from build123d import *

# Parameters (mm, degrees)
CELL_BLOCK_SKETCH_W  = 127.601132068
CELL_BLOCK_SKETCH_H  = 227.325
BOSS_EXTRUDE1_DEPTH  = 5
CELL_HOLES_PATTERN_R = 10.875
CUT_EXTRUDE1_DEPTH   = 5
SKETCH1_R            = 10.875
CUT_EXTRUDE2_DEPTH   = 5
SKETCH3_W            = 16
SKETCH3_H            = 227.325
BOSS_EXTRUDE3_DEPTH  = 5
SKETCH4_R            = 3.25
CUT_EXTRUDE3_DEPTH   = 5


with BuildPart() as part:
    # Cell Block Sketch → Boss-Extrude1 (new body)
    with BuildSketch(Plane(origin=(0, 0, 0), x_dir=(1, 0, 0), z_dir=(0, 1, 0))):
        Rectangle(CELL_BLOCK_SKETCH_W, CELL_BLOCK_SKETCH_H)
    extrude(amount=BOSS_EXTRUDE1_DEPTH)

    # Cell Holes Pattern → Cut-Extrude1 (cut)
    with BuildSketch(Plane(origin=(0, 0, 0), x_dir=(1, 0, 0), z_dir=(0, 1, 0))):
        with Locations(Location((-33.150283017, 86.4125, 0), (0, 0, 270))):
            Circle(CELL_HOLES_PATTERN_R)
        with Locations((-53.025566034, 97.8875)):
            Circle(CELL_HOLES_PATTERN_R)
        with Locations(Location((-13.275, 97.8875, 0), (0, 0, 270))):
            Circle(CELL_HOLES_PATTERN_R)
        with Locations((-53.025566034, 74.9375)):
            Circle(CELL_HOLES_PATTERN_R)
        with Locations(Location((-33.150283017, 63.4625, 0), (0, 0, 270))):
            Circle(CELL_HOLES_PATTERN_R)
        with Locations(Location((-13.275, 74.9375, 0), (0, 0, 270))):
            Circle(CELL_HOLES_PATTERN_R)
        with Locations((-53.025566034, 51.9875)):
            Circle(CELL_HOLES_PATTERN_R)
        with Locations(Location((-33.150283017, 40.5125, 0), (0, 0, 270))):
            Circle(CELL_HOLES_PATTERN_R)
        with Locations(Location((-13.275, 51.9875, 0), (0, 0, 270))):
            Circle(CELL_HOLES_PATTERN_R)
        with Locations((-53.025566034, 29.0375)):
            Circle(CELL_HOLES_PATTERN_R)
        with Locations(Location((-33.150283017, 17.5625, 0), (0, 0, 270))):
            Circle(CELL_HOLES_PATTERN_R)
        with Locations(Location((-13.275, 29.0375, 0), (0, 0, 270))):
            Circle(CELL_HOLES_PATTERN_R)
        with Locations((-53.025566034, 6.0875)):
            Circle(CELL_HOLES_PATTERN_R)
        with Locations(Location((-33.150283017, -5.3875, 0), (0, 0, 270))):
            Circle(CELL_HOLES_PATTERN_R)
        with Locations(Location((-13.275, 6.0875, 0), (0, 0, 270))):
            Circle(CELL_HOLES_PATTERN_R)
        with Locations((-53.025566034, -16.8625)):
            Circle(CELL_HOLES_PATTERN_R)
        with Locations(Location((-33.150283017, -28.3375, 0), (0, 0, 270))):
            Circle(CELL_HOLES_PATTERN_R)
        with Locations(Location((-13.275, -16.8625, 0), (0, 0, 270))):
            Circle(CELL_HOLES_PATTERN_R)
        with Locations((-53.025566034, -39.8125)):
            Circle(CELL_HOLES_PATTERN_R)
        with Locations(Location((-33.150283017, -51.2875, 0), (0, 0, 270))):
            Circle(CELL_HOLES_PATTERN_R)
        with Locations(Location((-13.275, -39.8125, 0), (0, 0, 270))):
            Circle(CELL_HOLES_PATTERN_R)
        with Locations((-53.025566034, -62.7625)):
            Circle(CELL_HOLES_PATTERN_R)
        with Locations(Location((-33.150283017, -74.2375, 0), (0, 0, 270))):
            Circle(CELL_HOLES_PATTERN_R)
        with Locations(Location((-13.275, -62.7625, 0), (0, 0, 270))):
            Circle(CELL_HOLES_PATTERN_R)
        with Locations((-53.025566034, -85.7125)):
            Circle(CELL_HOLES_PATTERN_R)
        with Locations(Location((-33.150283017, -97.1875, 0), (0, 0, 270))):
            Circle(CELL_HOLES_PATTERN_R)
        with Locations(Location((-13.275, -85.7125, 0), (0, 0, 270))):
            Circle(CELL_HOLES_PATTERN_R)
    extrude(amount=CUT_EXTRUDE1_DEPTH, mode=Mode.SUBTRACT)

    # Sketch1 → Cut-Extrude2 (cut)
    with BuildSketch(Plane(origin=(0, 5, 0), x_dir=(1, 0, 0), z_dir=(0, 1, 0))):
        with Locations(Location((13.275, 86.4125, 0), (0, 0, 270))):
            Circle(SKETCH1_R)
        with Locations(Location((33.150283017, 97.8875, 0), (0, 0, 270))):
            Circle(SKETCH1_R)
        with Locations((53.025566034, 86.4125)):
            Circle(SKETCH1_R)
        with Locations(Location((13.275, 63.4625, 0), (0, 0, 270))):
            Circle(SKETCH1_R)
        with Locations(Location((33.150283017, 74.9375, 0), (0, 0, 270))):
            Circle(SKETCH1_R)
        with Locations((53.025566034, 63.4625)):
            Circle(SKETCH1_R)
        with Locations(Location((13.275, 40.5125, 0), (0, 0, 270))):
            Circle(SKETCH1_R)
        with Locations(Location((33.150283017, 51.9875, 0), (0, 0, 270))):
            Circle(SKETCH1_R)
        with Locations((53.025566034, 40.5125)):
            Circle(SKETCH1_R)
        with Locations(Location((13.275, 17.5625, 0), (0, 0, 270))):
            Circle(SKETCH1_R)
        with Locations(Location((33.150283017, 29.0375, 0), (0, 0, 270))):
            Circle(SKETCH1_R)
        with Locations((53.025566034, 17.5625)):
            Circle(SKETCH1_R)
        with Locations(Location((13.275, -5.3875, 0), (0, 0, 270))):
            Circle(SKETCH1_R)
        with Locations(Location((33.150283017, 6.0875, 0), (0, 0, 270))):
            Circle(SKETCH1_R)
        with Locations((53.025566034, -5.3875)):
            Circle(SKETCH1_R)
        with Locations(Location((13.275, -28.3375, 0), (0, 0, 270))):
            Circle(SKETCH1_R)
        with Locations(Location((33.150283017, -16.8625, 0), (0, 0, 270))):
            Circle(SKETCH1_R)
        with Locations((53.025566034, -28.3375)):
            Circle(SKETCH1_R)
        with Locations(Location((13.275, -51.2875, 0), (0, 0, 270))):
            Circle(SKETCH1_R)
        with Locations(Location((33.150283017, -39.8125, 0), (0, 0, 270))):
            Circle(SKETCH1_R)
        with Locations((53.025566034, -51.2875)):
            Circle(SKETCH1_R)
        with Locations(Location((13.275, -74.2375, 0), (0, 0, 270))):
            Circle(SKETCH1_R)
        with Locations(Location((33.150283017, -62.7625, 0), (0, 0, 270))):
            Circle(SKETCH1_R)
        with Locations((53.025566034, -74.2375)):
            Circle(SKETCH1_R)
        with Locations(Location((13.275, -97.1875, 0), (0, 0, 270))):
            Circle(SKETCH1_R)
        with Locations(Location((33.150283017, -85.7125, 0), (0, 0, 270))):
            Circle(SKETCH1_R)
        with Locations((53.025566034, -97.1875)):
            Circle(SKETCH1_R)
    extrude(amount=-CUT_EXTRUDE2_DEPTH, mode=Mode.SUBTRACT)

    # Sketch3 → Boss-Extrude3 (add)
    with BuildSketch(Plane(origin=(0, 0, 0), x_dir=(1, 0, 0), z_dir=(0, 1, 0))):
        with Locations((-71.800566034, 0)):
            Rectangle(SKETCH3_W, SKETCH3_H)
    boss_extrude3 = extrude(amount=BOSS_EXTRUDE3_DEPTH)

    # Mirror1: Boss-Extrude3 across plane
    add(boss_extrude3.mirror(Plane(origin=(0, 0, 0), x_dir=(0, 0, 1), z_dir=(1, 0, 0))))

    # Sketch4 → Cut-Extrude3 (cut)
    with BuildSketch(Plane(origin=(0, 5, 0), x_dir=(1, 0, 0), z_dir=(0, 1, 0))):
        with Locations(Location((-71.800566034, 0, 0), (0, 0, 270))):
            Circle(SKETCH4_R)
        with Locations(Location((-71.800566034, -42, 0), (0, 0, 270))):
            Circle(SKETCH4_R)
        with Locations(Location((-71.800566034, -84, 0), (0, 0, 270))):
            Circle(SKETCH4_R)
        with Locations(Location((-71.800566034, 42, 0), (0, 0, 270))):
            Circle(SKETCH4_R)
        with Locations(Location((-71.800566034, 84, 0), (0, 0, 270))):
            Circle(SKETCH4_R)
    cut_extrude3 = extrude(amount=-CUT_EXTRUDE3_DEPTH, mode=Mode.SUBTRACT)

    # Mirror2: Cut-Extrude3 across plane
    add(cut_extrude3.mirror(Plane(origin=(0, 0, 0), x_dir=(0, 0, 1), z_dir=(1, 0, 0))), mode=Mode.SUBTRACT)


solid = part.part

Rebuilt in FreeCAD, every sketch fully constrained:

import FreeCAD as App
import Part
import Sketcher
Q = App.Units.Quantity


def add_polygon(sketch, points):
    """Adds a closed chain of lines whose ends are joined by coincident constraints."""
    first, n = sketch.GeometryCount, len(points)
    for a, b in zip(points, points[1:] + points[:1]):
        sketch.addGeometry(Part.LineSegment(App.Vector(*a, 0), App.Vector(*b, 0)), False)
    for i in range(n):
        sketch.addConstraint(Sketcher.Constraint("Coincident", first + i, 2, first + (i + 1) % n, 1))

doc = App.newDocument("Part")
body = doc.addObject("PartDesign::Body", "Body")

# Sketch on XZ plane
sketch1 = body.newObject("Sketcher::SketchObject", "Sketch")
sketch1.AttachmentSupport = (doc.getObject("XZ_Plane"), [""])
sketch1.MapMode = "FlatFace"
add_polygon(sketch1, [(-64, -114), (-64, 114), (64, 114), (64, -114)])  # lines 0-3
sketch1.addConstraint(Sketcher.Constraint("Vertical", 0))
sketch1.addConstraint(Sketcher.Constraint("Horizontal", 1))
sketch1.addConstraint(Sketcher.Constraint("Vertical", 2))
sketch1.addConstraint(Sketcher.Constraint("Horizontal", 3))
sketch1.addConstraint(Sketcher.Constraint("Symmetric", 0, 2, 2, 2, -1, 1))
sketch1.addConstraint(Sketcher.Constraint("DistanceY", 0, 1, 0, 2, Q("227.325 mm")))
sketch1.addConstraint(Sketcher.Constraint("DistanceX", 1, 1, 1, 2, Q("127.601132 mm")))
pad1 = body.newObject("PartDesign::Pad", "Pad")
pad1.Profile = sketch1
pad1.Length = 5
pad1.Reversed = True

# Sketch on XZ plane
sketch2 = body.newObject("Sketcher::SketchObject", "Sketch001")
sketch2.AttachmentSupport = (doc.getObject("XZ_Plane"), [""])
sketch2.MapMode = "FlatFace"
sketch2.addGeometry(Part.Circle(App.Vector(-33, -86, 0), App.Vector(0, 0, 1), 11), False)
sketch2.addGeometry(Part.Circle(App.Vector(-53, -98, 0), App.Vector(0, 0, 1), 11), False)
sketch2.addGeometry(Part.Circle(App.Vector(-13, -98, 0), App.Vector(0, 0, 1), 11), False)
sketch2.addGeometry(Part.Circle(App.Vector(-53, -75, 0), App.Vector(0, 0, 1), 11), False)
sketch2.addGeometry(Part.Circle(App.Vector(-33, -63, 0), App.Vector(0, 0, 1), 11), False)
sketch2.addGeometry(Part.Circle(App.Vector(-13, -75, 0), App.Vector(0, 0, 1), 11), False)
sketch2.addGeometry(Part.Circle(App.Vector(-53, -52, 0), App.Vector(0, 0, 1), 11), False)
sketch2.addGeometry(Part.Circle(App.Vector(-33, -41, 0), App.Vector(0, 0, 1), 11), False)
sketch2.addGeometry(Part.Circle(App.Vector(-13, -52, 0), App.Vector(0, 0, 1), 11), False)
sketch2.addGeometry(Part.Circle(App.Vector(-53, -29, 0), App.Vector(0, 0, 1), 11), False)
sketch2.addGeometry(Part.Circle(App.Vector(-33, -18, 0), App.Vector(0, 0, 1), 11), False)
sketch2.addGeometry(Part.Circle(App.Vector(-13, -29, 0), App.Vector(0, 0, 1), 11), False)
sketch2.addGeometry(Part.Circle(App.Vector(-53, -6, 0), App.Vector(0, 0, 1), 11), False)
sketch2.addGeometry(Part.Circle(App.Vector(-33, 5, 0), App.Vector(0, 0, 1), 11), False)
sketch2.addGeometry(Part.Circle(App.Vector(-13, -6, 0), App.Vector(0, 0, 1), 11), False)
sketch2.addGeometry(Part.Circle(App.Vector(-53, 17, 0), App.Vector(0, 0, 1), 11), False)
sketch2.addGeometry(Part.Circle(App.Vector(-33, 28, 0), App.Vector(0, 0, 1), 11), False)
sketch2.addGeometry(Part.Circle(App.Vector(-13, 17, 0), App.Vector(0, 0, 1), 11), False)
sketch2.addGeometry(Part.Circle(App.Vector(-53, 40, 0), App.Vector(0, 0, 1), 11), False)
sketch2.addGeometry(Part.Circle(App.Vector(-33, 51, 0), App.Vector(0, 0, 1), 11), False)
sketch2.addGeometry(Part.Circle(App.Vector(-13, 40, 0), App.Vector(0, 0, 1), 11), False)
sketch2.addGeometry(Part.Circle(App.Vector(-53, 63, 0), App.Vector(0, 0, 1), 11), False)
sketch2.addGeometry(Part.Circle(App.Vector(-33, 74, 0), App.Vector(0, 0, 1), 11), False)
sketch2.addGeometry(Part.Circle(App.Vector(-13, 63, 0), App.Vector(0, 0, 1), 11), False)
sketch2.addGeometry(Part.Circle(App.Vector(-53, 86, 0), App.Vector(0, 0, 1), 11), False)
sketch2.addGeometry(Part.Circle(App.Vector(-33, 97, 0), App.Vector(0, 0, 1), 11), False)
sketch2.addGeometry(Part.Circle(App.Vector(-13, 86, 0), App.Vector(0, 0, 1), 11), False)
sketch2.addConstraint(Sketcher.Constraint("Equal", 0, 1))
sketch2.addConstraint(Sketcher.Constraint("Equal", 1, 2))
sketch2.addConstraint(Sketcher.Constraint("Equal", 2, 3))
sketch2.addConstraint(Sketcher.Constraint("Equal", 3, 4))
sketch2.addConstraint(Sketcher.Constraint("Equal", 4, 5))
sketch2.addConstraint(Sketcher.Constraint("Equal", 5, 6))
sketch2.addConstraint(Sketcher.Constraint("Equal", 6, 7))
sketch2.addConstraint(Sketcher.Constraint("Equal", 7, 8))
sketch2.addConstraint(Sketcher.Constraint("Equal", 8, 9))
sketch2.addConstraint(Sketcher.Constraint("Equal", 9, 10))
sketch2.addConstraint(Sketcher.Constraint("Equal", 10, 11))
sketch2.addConstraint(Sketcher.Constraint("Equal", 11, 12))
sketch2.addConstraint(Sketcher.Constraint("Equal", 12, 13))
sketch2.addConstraint(Sketcher.Constraint("Equal", 13, 14))
sketch2.addConstraint(Sketcher.Constraint("Equal", 14, 15))
sketch2.addConstraint(Sketcher.Constraint("Equal", 15, 16))
sketch2.addConstraint(Sketcher.Constraint("Equal", 16, 17))
sketch2.addConstraint(Sketcher.Constraint("Equal", 17, 18))
sketch2.addConstraint(Sketcher.Constraint("Equal", 18, 19))
sketch2.addConstraint(Sketcher.Constraint("Equal", 19, 20))
sketch2.addConstraint(Sketcher.Constraint("Equal", 20, 21))
sketch2.addConstraint(Sketcher.Constraint("Equal", 21, 22))
sketch2.addConstraint(Sketcher.Constraint("Equal", 22, 23))
sketch2.addConstraint(Sketcher.Constraint("Equal", 23, 24))
sketch2.addConstraint(Sketcher.Constraint("Equal", 24, 25))
sketch2.addConstraint(Sketcher.Constraint("Equal", 25, 26))
sketch2.addConstraint(Sketcher.Constraint("Horizontal", 1, 3, 2, 3))
sketch2.addConstraint(Sketcher.Constraint("Horizontal", 3, 3, 5, 3))
sketch2.addConstraint(Sketcher.Constraint("Horizontal", 6, 3, 8, 3))
sketch2.addConstraint(Sketcher.Constraint("Horizontal", 9, 3, 11, 3))
sketch2.addConstraint(Sketcher.Constraint("Horizontal", 12, 3, 14, 3))
sketch2.addConstraint(Sketcher.Constraint("Horizontal", 15, 3, 17, 3))
sketch2.addConstraint(Sketcher.Constraint("Horizontal", 18, 3, 20, 3))
sketch2.addConstraint(Sketcher.Constraint("Horizontal", 21, 3, 23, 3))
sketch2.addConstraint(Sketcher.Constraint("Horizontal", 24, 3, 26, 3))
sketch2.addConstraint(Sketcher.Constraint("Vertical", 1, 3, 3, 3))
sketch2.addConstraint(Sketcher.Constraint("Vertical", 0, 3, 4, 3))
sketch2.addConstraint(Sketcher.Constraint("Vertical", 2, 3, 5, 3))
sketch2.addConstraint(Sketcher.Constraint("Vertical", 3, 3, 6, 3))
sketch2.addConstraint(Sketcher.Constraint("Vertical", 4, 3, 7, 3))
sketch2.addConstraint(Sketcher.Constraint("Vertical", 5, 3, 8, 3))
sketch2.addConstraint(Sketcher.Constraint("Vertical", 6, 3, 9, 3))
sketch2.addConstraint(Sketcher.Constraint("Vertical", 7, 3, 10, 3))
sketch2.addConstraint(Sketcher.Constraint("Vertical", 8, 3, 11, 3))
sketch2.addConstraint(Sketcher.Constraint("Vertical", 9, 3, 12, 3))
sketch2.addConstraint(Sketcher.Constraint("Vertical", 10, 3, 13, 3))
sketch2.addConstraint(Sketcher.Constraint("Vertical", 11, 3, 14, 3))
sketch2.addConstraint(Sketcher.Constraint("Vertical", 12, 3, 15, 3))
sketch2.addConstraint(Sketcher.Constraint("Vertical", 13, 3, 16, 3))
sketch2.addConstraint(Sketcher.Constraint("Vertical", 14, 3, 17, 3))
sketch2.addConstraint(Sketcher.Constraint("Vertical", 15, 3, 18, 3))
sketch2.addConstraint(Sketcher.Constraint("Vertical", 16, 3, 19, 3))
sketch2.addConstraint(Sketcher.Constraint("Vertical", 17, 3, 20, 3))
sketch2.addConstraint(Sketcher.Constraint("Vertical", 18, 3, 21, 3))
sketch2.addConstraint(Sketcher.Constraint("Vertical", 19, 3, 22, 3))
sketch2.addConstraint(Sketcher.Constraint("Vertical", 20, 3, 23, 3))
sketch2.addConstraint(Sketcher.Constraint("Vertical", 21, 3, 24, 3))
sketch2.addConstraint(Sketcher.Constraint("Vertical", 22, 3, 25, 3))
sketch2.addConstraint(Sketcher.Constraint("Vertical", 23, 3, 26, 3))
sketch2.addConstraint(Sketcher.Constraint("Diameter", 0, Q("21.75 mm")))
sketch2.addConstraint(Sketcher.Constraint("DistanceY", 1, 3, 6, 3, Q("45.9 mm")))
sketch2.addConstraint(Sketcher.Constraint("DistanceY", 0, 3, 7, 3, Q("45.9 mm")))
sketch2.addConstraint(Sketcher.Constraint("DistanceY", 3, 3, 9, 3, Q("45.9 mm")))
sketch2.addConstraint(Sketcher.Constraint("DistanceY", 4, 3, 10, 3, Q("45.9 mm")))
sketch2.addConstraint(Sketcher.Constraint("DistanceY", 6, 3, 12, 3, Q("45.9 mm")))
sketch2.addConstraint(Sketcher.Constraint("DistanceY", 7, 3, 13, 3, Q("45.9 mm")))
sketch2.addConstraint(Sketcher.Constraint("DistanceY", 9, 3, 15, 3, Q("45.9 mm")))
sketch2.addConstraint(Sketcher.Constraint("DistanceY", 10, 3, 16, 3, Q("45.9 mm")))
sketch2.addConstraint(Sketcher.Constraint("DistanceY", 12, 3, 18, 3, Q("45.9 mm")))
sketch2.addConstraint(Sketcher.Constraint("DistanceY", 13, 3, 19, 3, Q("45.9 mm")))
sketch2.addConstraint(Sketcher.Constraint("DistanceY", 15, 3, 21, 3, Q("45.9 mm")))
sketch2.addConstraint(Sketcher.Constraint("DistanceY", 16, 3, 22, 3, Q("45.9 mm")))
sketch2.addConstraint(Sketcher.Constraint("DistanceY", 18, 3, 24, 3, Q("45.9 mm")))
sketch2.addConstraint(Sketcher.Constraint("DistanceY", 19, 3, 25, 3, Q("45.9 mm")))
sketch2.addConstraint(Sketcher.Constraint("DistanceY", 1, 3, 3, 3, Q("22.95 mm")))
sketch2.addConstraint(Sketcher.Constraint("DistanceY", 0, 3, 4, 3, Q("22.95 mm")))
sketch2.addConstraint(Sketcher.Constraint("DistanceX", 2, 3, -1, 1, Q("13.275 mm")))
sketch2.addConstraint(Sketcher.Constraint("DistanceY", 1, 3, 0, 3, Q("11.475 mm")))
sketch2.addConstraint(Sketcher.Constraint("DistanceY", 0, 3, -1, 1, Q("86.4125 mm")))
sketch2.addConstraint(Sketcher.Constraint("DistanceX", 0, 3, -1, 1, Q("33.150283 mm")))
sketch2.addConstraint(Sketcher.Constraint("DistanceX", 1, 3, -1, 1, Q("53.025566 mm")))
pocket1 = body.newObject("PartDesign::Pocket", "Pocket")
pocket1.Profile = sketch2
pocket1.Length = 5

# Sketch on XZ plane
sketch3 = body.newObject("Sketcher::SketchObject", "Sketch002")
sketch3.AttachmentSupport = (doc.getObject("XZ_Plane"), [""])
sketch3.MapMode = "FlatFace"
sketch3.AttachmentOffset = App.Placement(App.Vector(0, 0, -5), App.Rotation())
sketch3.addGeometry(Part.Circle(App.Vector(13, -86, 0), App.Vector(0, 0, 1), 11), False)
sketch3.addGeometry(Part.Circle(App.Vector(33, -98, 0), App.Vector(0, 0, 1), 11), False)
sketch3.addGeometry(Part.Circle(App.Vector(53, -86, 0), App.Vector(0, 0, 1), 11), False)
sketch3.addGeometry(Part.Circle(App.Vector(13, -63, 0), App.Vector(0, 0, 1), 11), False)
sketch3.addGeometry(Part.Circle(App.Vector(33, -75, 0), App.Vector(0, 0, 1), 11), False)
sketch3.addGeometry(Part.Circle(App.Vector(53, -63, 0), App.Vector(0, 0, 1), 11), False)
sketch3.addGeometry(Part.Circle(App.Vector(13, -41, 0), App.Vector(0, 0, 1), 11), False)
sketch3.addGeometry(Part.Circle(App.Vector(33, -52, 0), App.Vector(0, 0, 1), 11), False)
sketch3.addGeometry(Part.Circle(App.Vector(53, -41, 0), App.Vector(0, 0, 1), 11), False)
sketch3.addGeometry(Part.Circle(App.Vector(13, -18, 0), App.Vector(0, 0, 1), 11), False)
sketch3.addGeometry(Part.Circle(App.Vector(33, -29, 0), App.Vector(0, 0, 1), 11), False)
sketch3.addGeometry(Part.Circle(App.Vector(53, -18, 0), App.Vector(0, 0, 1), 11), False)
sketch3.addGeometry(Part.Circle(App.Vector(13, 5, 0), App.Vector(0, 0, 1), 11), False)
sketch3.addGeometry(Part.Circle(App.Vector(33, -6, 0), App.Vector(0, 0, 1), 11), False)
sketch3.addGeometry(Part.Circle(App.Vector(53, 5, 0), App.Vector(0, 0, 1), 11), False)
sketch3.addGeometry(Part.Circle(App.Vector(13, 28, 0), App.Vector(0, 0, 1), 11), False)
sketch3.addGeometry(Part.Circle(App.Vector(33, 17, 0), App.Vector(0, 0, 1), 11), False)
sketch3.addGeometry(Part.Circle(App.Vector(53, 28, 0), App.Vector(0, 0, 1), 11), False)
sketch3.addGeometry(Part.Circle(App.Vector(13, 51, 0), App.Vector(0, 0, 1), 11), False)
sketch3.addGeometry(Part.Circle(App.Vector(33, 40, 0), App.Vector(0, 0, 1), 11), False)
sketch3.addGeometry(Part.Circle(App.Vector(53, 51, 0), App.Vector(0, 0, 1), 11), False)
sketch3.addGeometry(Part.Circle(App.Vector(13, 74, 0), App.Vector(0, 0, 1), 11), False)
sketch3.addGeometry(Part.Circle(App.Vector(33, 63, 0), App.Vector(0, 0, 1), 11), False)
sketch3.addGeometry(Part.Circle(App.Vector(53, 74, 0), App.Vector(0, 0, 1), 11), False)
sketch3.addGeometry(Part.Circle(App.Vector(13, 97, 0), App.Vector(0, 0, 1), 11), False)
sketch3.addGeometry(Part.Circle(App.Vector(33, 86, 0), App.Vector(0, 0, 1), 11), False)
sketch3.addGeometry(Part.Circle(App.Vector(53, 97, 0), App.Vector(0, 0, 1), 11), False)
sketch3.addConstraint(Sketcher.Constraint("Equal", 0, 1))
sketch3.addConstraint(Sketcher.Constraint("Equal", 1, 2))
sketch3.addConstraint(Sketcher.Constraint("Equal", 2, 3))
sketch3.addConstraint(Sketcher.Constraint("Equal", 3, 4))
sketch3.addConstraint(Sketcher.Constraint("Equal", 4, 5))
sketch3.addConstraint(Sketcher.Constraint("Equal", 5, 6))
sketch3.addConstraint(Sketcher.Constraint("Equal", 6, 7))
sketch3.addConstraint(Sketcher.Constraint("Equal", 7, 8))
sketch3.addConstraint(Sketcher.Constraint("Equal", 8, 9))
sketch3.addConstraint(Sketcher.Constraint("Equal", 9, 10))
sketch3.addConstraint(Sketcher.Constraint("Equal", 10, 11))
sketch3.addConstraint(Sketcher.Constraint("Equal", 11, 12))
sketch3.addConstraint(Sketcher.Constraint("Equal", 12, 13))
sketch3.addConstraint(Sketcher.Constraint("Equal", 13, 14))
sketch3.addConstraint(Sketcher.Constraint("Equal", 14, 15))
sketch3.addConstraint(Sketcher.Constraint("Equal", 15, 16))
sketch3.addConstraint(Sketcher.Constraint("Equal", 16, 17))
sketch3.addConstraint(Sketcher.Constraint("Equal", 17, 18))
sketch3.addConstraint(Sketcher.Constraint("Equal", 18, 19))
sketch3.addConstraint(Sketcher.Constraint("Equal", 19, 20))
sketch3.addConstraint(Sketcher.Constraint("Equal", 20, 21))
sketch3.addConstraint(Sketcher.Constraint("Equal", 21, 22))
sketch3.addConstraint(Sketcher.Constraint("Equal", 22, 23))
sketch3.addConstraint(Sketcher.Constraint("Equal", 23, 24))
sketch3.addConstraint(Sketcher.Constraint("Equal", 24, 25))
sketch3.addConstraint(Sketcher.Constraint("Equal", 25, 26))
sketch3.addConstraint(Sketcher.Constraint("Horizontal", 0, 3, 2, 3))
sketch3.addConstraint(Sketcher.Constraint("Horizontal", 3, 3, 5, 3))
sketch3.addConstraint(Sketcher.Constraint("Horizontal", 6, 3, 8, 3))
sketch3.addConstraint(Sketcher.Constraint("Horizontal", 9, 3, 11, 3))
sketch3.addConstraint(Sketcher.Constraint("Horizontal", 12, 3, 14, 3))
sketch3.addConstraint(Sketcher.Constraint("Horizontal", 15, 3, 17, 3))
sketch3.addConstraint(Sketcher.Constraint("Horizontal", 18, 3, 20, 3))
sketch3.addConstraint(Sketcher.Constraint("Horizontal", 21, 3, 23, 3))
sketch3.addConstraint(Sketcher.Constraint("Horizontal", 24, 3, 26, 3))
sketch3.addConstraint(Sketcher.Constraint("Vertical", 0, 3, 3, 3))
sketch3.addConstraint(Sketcher.Constraint("Vertical", 1, 3, 4, 3))
sketch3.addConstraint(Sketcher.Constraint("Vertical", 2, 3, 5, 3))
sketch3.addConstraint(Sketcher.Constraint("Vertical", 3, 3, 6, 3))
sketch3.addConstraint(Sketcher.Constraint("Vertical", 4, 3, 7, 3))
sketch3.addConstraint(Sketcher.Constraint("Vertical", 5, 3, 8, 3))
sketch3.addConstraint(Sketcher.Constraint("Vertical", 6, 3, 9, 3))
sketch3.addConstraint(Sketcher.Constraint("Vertical", 7, 3, 10, 3))
sketch3.addConstraint(Sketcher.Constraint("Vertical", 8, 3, 11, 3))
sketch3.addConstraint(Sketcher.Constraint("Vertical", 9, 3, 12, 3))
sketch3.addConstraint(Sketcher.Constraint("Vertical", 10, 3, 13, 3))
sketch3.addConstraint(Sketcher.Constraint("Vertical", 11, 3, 14, 3))
sketch3.addConstraint(Sketcher.Constraint("Vertical", 12, 3, 15, 3))
sketch3.addConstraint(Sketcher.Constraint("Vertical", 13, 3, 16, 3))
sketch3.addConstraint(Sketcher.Constraint("Vertical", 14, 3, 17, 3))
sketch3.addConstraint(Sketcher.Constraint("Vertical", 15, 3, 18, 3))
sketch3.addConstraint(Sketcher.Constraint("Vertical", 16, 3, 19, 3))
sketch3.addConstraint(Sketcher.Constraint("Vertical", 17, 3, 20, 3))
sketch3.addConstraint(Sketcher.Constraint("Vertical", 18, 3, 21, 3))
sketch3.addConstraint(Sketcher.Constraint("Vertical", 19, 3, 22, 3))
sketch3.addConstraint(Sketcher.Constraint("Vertical", 20, 3, 23, 3))
sketch3.addConstraint(Sketcher.Constraint("Vertical", 21, 3, 24, 3))
sketch3.addConstraint(Sketcher.Constraint("Vertical", 22, 3, 25, 3))
sketch3.addConstraint(Sketcher.Constraint("Vertical", 23, 3, 26, 3))
sketch3.addConstraint(Sketcher.Constraint("Diameter", 0, Q("21.75 mm")))
sketch3.addConstraint(Sketcher.Constraint("DistanceY", 0, 3, 6, 3, Q("45.9 mm")))
sketch3.addConstraint(Sketcher.Constraint("DistanceY", 3, 3, 9, 3, Q("45.9 mm")))
sketch3.addConstraint(Sketcher.Constraint("DistanceY", 6, 3, 12, 3, Q("45.9 mm")))
sketch3.addConstraint(Sketcher.Constraint("DistanceY", 9, 3, 15, 3, Q("45.9 mm")))
sketch3.addConstraint(Sketcher.Constraint("DistanceY", 12, 3, 18, 3, Q("45.9 mm")))
sketch3.addConstraint(Sketcher.Constraint("DistanceY", 15, 3, 21, 3, Q("45.9 mm")))
sketch3.addConstraint(Sketcher.Constraint("DistanceY", 18, 3, 24, 3, Q("45.9 mm")))
sketch3.addConstraint(Sketcher.Constraint("DistanceY", 0, 3, 3, 3, Q("22.95 mm")))
sketch3.addConstraint(Sketcher.Constraint("DistanceY", 1, 3, 4, 3, Q("22.95 mm")))
sketch3.addConstraint(Sketcher.Constraint("DistanceY", 4, 3, 7, 3, Q("22.95 mm")))
sketch3.addConstraint(Sketcher.Constraint("DistanceY", 7, 3, 10, 3, Q("22.95 mm")))
sketch3.addConstraint(Sketcher.Constraint("DistanceY", 10, 3, 13, 3, Q("22.95 mm")))
sketch3.addConstraint(Sketcher.Constraint("DistanceY", 13, 3, 16, 3, Q("22.95 mm")))
sketch3.addConstraint(Sketcher.Constraint("DistanceY", 16, 3, 19, 3, Q("22.95 mm")))
sketch3.addConstraint(Sketcher.Constraint("DistanceY", 19, 3, 22, 3, Q("22.95 mm")))
sketch3.addConstraint(Sketcher.Constraint("DistanceY", 22, 3, 25, 3, Q("22.95 mm")))
sketch3.addConstraint(Sketcher.Constraint("DistanceX", -1, 1, 0, 3, Q("13.275 mm")))
sketch3.addConstraint(Sketcher.Constraint("DistanceY", 1, 3, 0, 3, Q("11.475 mm")))
sketch3.addConstraint(Sketcher.Constraint("DistanceY", 0, 3, -1, 1, Q("86.4125 mm")))
sketch3.addConstraint(Sketcher.Constraint("DistanceX", -1, 1, 1, 3, Q("33.150283 mm")))
sketch3.addConstraint(Sketcher.Constraint("DistanceX", -1, 1, 2, 3, Q("53.025566 mm")))
pocket2 = body.newObject("PartDesign::Pocket", "Pocket001")
pocket2.Profile = sketch3
pocket2.Length = 5
pocket2.Reversed = True

# Sketch on XZ plane
sketch4 = body.newObject("Sketcher::SketchObject", "Sketch003")
sketch4.AttachmentSupport = (doc.getObject("XZ_Plane"), [""])
sketch4.MapMode = "FlatFace"
add_polygon(sketch4, [(-80, -114), (-80, 114), (-64, 114), (-64, -114)])  # lines 0-3
sketch4.addConstraint(Sketcher.Constraint("Vertical", 0))
sketch4.addConstraint(Sketcher.Constraint("Horizontal", 1))
sketch4.addConstraint(Sketcher.Constraint("Vertical", 2))
sketch4.addConstraint(Sketcher.Constraint("Horizontal", 3))
sketch4.addConstraint(Sketcher.Constraint("DistanceX", 1, 1, 1, 2, Q("16 mm")))
sketch4.addConstraint(Sketcher.Constraint("DistanceY", 0, 1, 0, 2, Q("227.325 mm")))
sketch4.addConstraint(Sketcher.Constraint("DistanceY", -1, 1, 0, 2, Q("113.6625 mm")))
sketch4.addConstraint(Sketcher.Constraint("DistanceX", 0, 2, -1, 1, Q("79.800566 mm")))
pad2 = body.newObject("PartDesign::Pad", "Pad001")
pad2.Profile = sketch4
pad2.Length = 5
pad2.Reversed = True
doc.recompute()

mirrored = body.newObject("PartDesign::Mirrored", "Mirrored")
mirrored.Originals = [pad2]
mirrored.MirrorPlane = (doc.getObject("YZ_Plane"), [""])
body.Tip = mirrored

# Sketch on XZ plane
sketch5 = body.newObject("Sketcher::SketchObject", "Sketch004")
sketch5.AttachmentSupport = (doc.getObject("XZ_Plane"), [""])
sketch5.MapMode = "FlatFace"
sketch5.AttachmentOffset = App.Placement(App.Vector(0, 0, -5), App.Rotation())
sketch5.addGeometry(Part.Circle(App.Vector(-71.8, 0, 0), App.Vector(0, 0, 1), 3.2), False)
sketch5.addGeometry(Part.Circle(App.Vector(-71.8, 42, 0), App.Vector(0, 0, 1), 3.2), False)
sketch5.addGeometry(Part.Circle(App.Vector(-71.8, 84, 0), App.Vector(0, 0, 1), 3.2), False)
sketch5.addGeometry(Part.Circle(App.Vector(-71.8, -42, 0), App.Vector(0, 0, 1), 3.2), False)
sketch5.addGeometry(Part.Circle(App.Vector(-71.8, -84, 0), App.Vector(0, 0, 1), 3.2), False)
sketch5.addConstraint(Sketcher.Constraint("Equal", 0, 1))
sketch5.addConstraint(Sketcher.Constraint("Equal", 1, 2))
sketch5.addConstraint(Sketcher.Constraint("Equal", 2, 3))
sketch5.addConstraint(Sketcher.Constraint("Equal", 3, 4))
sketch5.addConstraint(Sketcher.Constraint("Symmetric", 1, 3, 3, 3, -1))
sketch5.addConstraint(Sketcher.Constraint("Symmetric", 2, 3, 4, 3, -1))
sketch5.addConstraint(Sketcher.Constraint("PointOnObject", 0, 3, -1))
sketch5.addConstraint(Sketcher.Constraint("Vertical", 0, 3, 1, 3))
sketch5.addConstraint(Sketcher.Constraint("Vertical", 1, 3, 2, 3))
sketch5.addConstraint(Sketcher.Constraint("Diameter", 0, Q("6.5 mm")))
sketch5.addConstraint(Sketcher.Constraint("DistanceY", -1, 1, 1, 3, Q("42 mm")))
sketch5.addConstraint(Sketcher.Constraint("DistanceY", -1, 1, 2, 3, Q("84 mm")))
sketch5.addConstraint(Sketcher.Constraint("DistanceX", 0, 3, -1, 1, Q("71.800566 mm")))
pocket3 = body.newObject("PartDesign::Pocket", "Pocket002")
pocket3.Profile = sketch5
pocket3.Length = 5
pocket3.Reversed = True
doc.recompute()

mirrored2 = body.newObject("PartDesign::Mirrored", "Mirrored001")
mirrored2.Originals = [pocket3]
mirrored2.MirrorPlane = (doc.getObject("YZ_Plane"), [""])
body.Tip = mirrored2

doc.recompute()
